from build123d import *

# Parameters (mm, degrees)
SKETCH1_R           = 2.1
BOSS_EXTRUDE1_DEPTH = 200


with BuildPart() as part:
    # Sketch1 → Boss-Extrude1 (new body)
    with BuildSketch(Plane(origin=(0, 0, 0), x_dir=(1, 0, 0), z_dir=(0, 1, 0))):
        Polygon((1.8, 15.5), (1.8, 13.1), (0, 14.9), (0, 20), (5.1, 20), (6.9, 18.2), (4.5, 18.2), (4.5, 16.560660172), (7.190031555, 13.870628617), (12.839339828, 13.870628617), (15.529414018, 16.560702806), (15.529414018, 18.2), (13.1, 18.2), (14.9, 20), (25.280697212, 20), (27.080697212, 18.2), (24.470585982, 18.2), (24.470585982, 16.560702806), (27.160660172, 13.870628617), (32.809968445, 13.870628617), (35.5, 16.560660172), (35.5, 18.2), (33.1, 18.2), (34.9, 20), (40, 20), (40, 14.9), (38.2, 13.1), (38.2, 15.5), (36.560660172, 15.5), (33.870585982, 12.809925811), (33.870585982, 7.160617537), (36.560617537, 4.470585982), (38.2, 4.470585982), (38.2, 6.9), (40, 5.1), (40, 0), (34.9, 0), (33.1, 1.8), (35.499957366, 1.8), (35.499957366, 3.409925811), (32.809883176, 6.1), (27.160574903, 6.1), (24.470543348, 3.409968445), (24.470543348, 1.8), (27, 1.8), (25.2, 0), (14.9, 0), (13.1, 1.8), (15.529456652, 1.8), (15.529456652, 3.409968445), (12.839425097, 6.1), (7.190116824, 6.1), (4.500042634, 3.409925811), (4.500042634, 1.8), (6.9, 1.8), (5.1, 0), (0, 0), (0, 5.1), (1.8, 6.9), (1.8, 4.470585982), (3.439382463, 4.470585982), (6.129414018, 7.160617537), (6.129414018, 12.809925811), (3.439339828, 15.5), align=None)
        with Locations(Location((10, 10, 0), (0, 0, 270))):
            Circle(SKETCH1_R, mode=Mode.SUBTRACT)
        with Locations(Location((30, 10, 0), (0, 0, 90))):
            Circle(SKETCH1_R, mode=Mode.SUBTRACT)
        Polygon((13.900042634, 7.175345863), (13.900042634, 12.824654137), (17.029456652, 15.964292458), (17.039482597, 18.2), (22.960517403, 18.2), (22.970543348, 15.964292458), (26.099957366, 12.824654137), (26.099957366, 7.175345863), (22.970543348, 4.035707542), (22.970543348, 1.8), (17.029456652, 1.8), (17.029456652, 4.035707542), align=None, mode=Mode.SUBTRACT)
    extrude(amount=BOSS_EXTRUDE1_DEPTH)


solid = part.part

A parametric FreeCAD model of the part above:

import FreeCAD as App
import Part
import Sketcher
from FreeCAD import Vector


def add_polygon(sketch, points):
    """Adds a closed chain of lines whose ends are joined by coincident constraints."""
    first, n = sketch.GeometryCount, len(points)
    for a, b in zip(points, points[1:] + points[:1]):
        sketch.addGeometry(Part.LineSegment(App.Vector(*a, 0), App.Vector(*b, 0)), False)
    for i in range(n):
        sketch.addConstraint(Sketcher.Constraint("Coincident", first + i, 2, first + (i + 1) % n, 1))

doc = App.newDocument("Part")
body = doc.addObject("PartDesign::Body", "Body")

# Sketch on XZ plane
sketch1 = doc.addObject("Sketcher::SketchObject", "Sketch")
body.addObject(sketch1)
sketch1.AttachmentSupport = (doc.XZ_Plane, [""])
sketch1.MapMode = "FlatFace"
add_polygon(sketch1, [(1.8, -13.1), (1.8, -15.5), (3.43934, -15.5), (6.129414, -12.809926), (6.129414, -7.160618), (3.439382, -4.470586), (1.8, -4.470586), (1.8, -6.9), (0, -5.1), (0, 0), (5.1, 0), (6.9, -1.8), (4.500043, -1.8), (4.500043, -3.409926), (7.190117, -6.1), (12.839425, -6.1), (15.529457, -3.409968), (15.529457, -1.8), (13.1, -1.8), (14.9, 0), (25.2, 0), (27, -1.8), (24.470543, -1.8), (24.470543, -3.409968), (27.160575, -6.1), (32.809883, -6.1), (35.499957, -3.409926), (35.499957, -1.8), (33.1, -1.8), (34.9, 0), (40, 0), (40, -5.1), (38.2, -6.9), (38.2, -4.470586), (36.560618, -4.470586), (33.870586, -7.160618), (33.870586, -12.809926), (36.56066, -15.5), (38.2, -15.5), (38.2, -13.1), (40, -14.9), (40, -20), (34.9, -20), (33.1, -18.2), (35.5, -18.2), (35.5, -16.56066), (32.809968, -13.870629), (27.16066, -13.870629), (24.470586, -16.560703), (24.470586, -18.2), (27.080697, -18.2), (25.280697, -20), (14.9, -20), (13.1, -18.2), (15.529414, -18.2), (15.529414, -16.560703), (12.83934, -13.870629), (7.190032, -13.870629), (4.5, -16.56066), (4.5, -18.2), (6.9, -18.2), (5.1, -20), (0, -20), (0, -14.9)])  # lines 0-63
sketch1.addGeometry(Part.Circle(Vector(30, -10, 0), Vector(0, 0, 1), 2.1), False)  # 64
add_polygon(sketch1, [(13.900043, -7.175346), (13.900043, -12.824654), (17.029457, -15.964292), (17.039483, -18.2), (22.960517, -18.2), (22.970543, -15.964292), (26.099957, -12.824654), (26.099957, -7.175346), (22.970543, -4.035708), (22.970543, -1.8), (17.029457, -1.8), (17.029457, -4.035708)])  # lines 65-76
sketch1.addGeometry(Part.Circle(Vector(10, -10, 0), Vector(0, 0, 1), 2.1), False)  # 77
sketch1.addConstraint([
    Sketcher.Constraint("Vertical", 0),
    Sketcher.Constraint("Horizontal", 1),
    Sketcher.Constraint("Vertical", 3),
    Sketcher.Constraint("Horizontal", 5),
    Sketcher.Constraint("Vertical", 6),
    Sketcher.Constraint("Vertical", 8),
    Sketcher.Constraint("Horizontal", 9),
    Sketcher.Constraint("Horizontal", 11),
    Sketcher.Constraint("Vertical", 12),
    Sketcher.Constraint("Horizontal", 14),
    Sketcher.Constraint("Vertical", 16),
    Sketcher.Constraint("Horizontal", 17),
    Sketcher.Constraint("Horizontal", 19),
    Sketcher.Constraint("Horizontal", 21),
    Sketcher.Constraint("Vertical", 22),
    Sketcher.Constraint("Horizontal", 24),
    Sketcher.Constraint("Vertical", 26),
    Sketcher.Constraint("Horizontal", 27),
    Sketcher.Constraint("Horizontal", 29),
    Sketcher.Constraint("Vertical", 30),
    Sketcher.Constraint("Vertical", 32),
    Sketcher.Constraint("Horizontal", 33),
    Sketcher.Constraint("Vertical", 35),
    Sketcher.Constraint("Horizontal", 37),
    Sketcher.Constraint("Vertical", 38),
    Sketcher.Constraint("Vertical", 40),
    Sketcher.Constraint("Horizontal", 41),
    Sketcher.Constraint("Horizontal", 43),
    Sketcher.Constraint("Vertical", 44),
    Sketcher.Constraint("Horizontal", 46),
    Sketcher.Constraint("Vertical", 48),
    Sketcher.Constraint("Horizontal", 49),
    Sketcher.Constraint("Horizontal", 51),
    Sketcher.Constraint("Horizontal", 53),
    Sketcher.Constraint("Vertical", 54),
    Sketcher.Constraint("Horizontal", 56),
    Sketcher.Constraint("Vertical", 58),
    Sketcher.Constraint("Horizontal", 59),
    Sketcher.Constraint("Horizontal", 61),
    Sketcher.Constraint("Vertical", 62),
    Sketcher.Constraint("Vertical", 65),
    Sketcher.Constraint("Horizontal", 68),
    Sketcher.Constraint("Vertical", 71),
    Sketcher.Constraint("Vertical", 73),
    Sketcher.Constraint("Horizontal", 74),
    Sketcher.Constraint("Vertical", 75),
    Sketcher.Constraint("Coincident", 8, 2, -1, 1),
    Sketcher.Constraint("Equal", 64, 77),
    Sketcher.Constraint("PointOnObject", 18, 2, -1),
    Sketcher.Constraint("PointOnObject", 28, 2, -1),
    Sketcher.Constraint("PointOnObject", 61, 2, -2),
    Sketcher.Constraint("Perpendicular", 2, 4),
    Sketcher.Constraint("Parallel", 4, 7),
    Sketcher.Constraint("Parallel", 7, 10),
    Sketcher.Constraint("Parallel", 10, 13),
    Sketcher.Constraint("Perpendicular", 13, 15),
    Sketcher.Constraint("Parallel", 15, 18),
    Sketcher.Constraint("Perpendicular", 18, 20),
    Sketcher.Constraint("Parallel", 20, 23),
    Sketcher.Constraint("Perpendicular", 23, 25),
    Sketcher.Constraint("Parallel", 25, 28),
    Sketcher.Constraint("Parallel", 28, 31),
    Sketcher.Constraint("Parallel", 31, 34),
    Sketcher.Constraint("Perpendicular", 34, 36),
    Sketcher.Constraint("Parallel", 36, 39),
    Sketcher.Constraint("Parallel", 39, 42),
    Sketcher.Constraint("Parallel", 42, 45),
    Sketcher.Constraint("Perpendicular", 45, 47),
    Sketcher.Constraint("Parallel", 47, 50),
    Sketcher.Constraint("Perpendicular", 50, 52),
    Sketcher.Constraint("Parallel", 52, 55),
    Sketcher.Constraint("Perpendicular", 55, 57),
    Sketcher.Constraint("Parallel", 57, 60),
    Sketcher.Constraint("Parallel", 60, 63),
    Sketcher.Constraint("Parallel", 66, 72),
    Sketcher.Constraint("Parallel", 70, 76),
    Sketcher.Constraint("Horizontal", 64, 3, 77, 3),
    Sketcher.Constraint("Horizontal", 11, 2, 16, 2),
    Sketcher.Constraint("Horizontal", 17, 2, 20, 2),
    Sketcher.Constraint("Horizontal", 15, 2, 22, 2),
    Sketcher.Constraint("Horizontal", 14, 2, 23, 2),
    Sketcher.Constraint("Horizontal", 12, 2, 25, 2),
    Sketcher.Constraint("Horizontal", 21, 2, 26, 2),
    Sketcher.Constraint("Horizontal", 7, 2, 30, 2),
    Sketcher.Constraint("Horizontal", 6, 2, 31, 2),
    Sketcher.Constraint("Horizontal", 5, 2, 32, 2),
    Sketcher.Constraint("Horizontal", 3, 2, 34, 2),
    Sketcher.Constraint("Horizontal", 2, 2, 35, 2),
    Sketcher.Constraint("Horizontal", 1, 2, 36, 2),
    Sketcher.Constraint("Horizontal", 43, 2, 48, 2),
    Sketcher.Constraint("Horizontal", 41, 2, 50, 2),
    Sketcher.Constraint("Horizontal", 49, 2, 52, 2),
    Sketcher.Constraint("Horizontal", 47, 2, 54, 2),
    Sketcher.Constraint("Horizontal", 46, 2, 55, 2),
    Sketcher.Constraint("Horizontal", 44, 2, 57, 2),
    Sketcher.Constraint("Horizontal", 53, 2, 58, 2),
    Sketcher.Constraint("Horizontal", 51, 2, 60, 2),
    Sketcher.Constraint("Horizontal", 39, 2, 62, 2),
    Sketcher.Constraint("Horizontal", 38, 2, 63, 2),
    Sketcher.Constraint("Horizontal", 59, 2, 67, 2),
    Sketcher.Constraint("Horizontal", 66, 2, 69, 2),
    Sketcher.Constraint("Horizontal", 65, 2, 70, 2),
    Sketcher.Constraint("Horizontal", 27, 2, 73, 2),
    Sketcher.Constraint("Horizontal", 72, 2, 75, 2),
    Sketcher.Constraint("Horizontal", 71, 2, 76, 2),
    Sketcher.Constraint("Vertical", 0, 2, 5, 2),
    Sketcher.Constraint("Vertical", 32, 2, 37, 2),
    Sketcher.Constraint("Vertical", 30, 2, 39, 2),
    Sketcher.Constraint("Vertical", 28, 2, 41, 2),
    Sketcher.Constraint("Vertical", 27, 2, 42, 2),
    Sketcher.Constraint("Vertical", 18, 2, 51, 2),
    Sketcher.Constraint("Vertical", 10, 2, 59, 2),
    Sketcher.Constraint("Vertical", 69, 2, 72, 2),
    Sketcher.Constraint("Vertical", 66, 2, 74, 2),
    Sketcher.Constraint("Equal", 14, 24),
    Sketcher.Constraint("Equal", 11, 27),
    Sketcher.Constraint("Equal", 9, 29),
    Sketcher.Constraint("Equal", 5, 33),
    Sketcher.Constraint("Equal", 24, 46),
    Sketcher.Constraint("Equal", 46, 56),
    Sketcher.Constraint("Equal", 43, 59),
    Sketcher.Constraint("Equal", 59, 0),
    Sketcher.Constraint("Equal", 56, 3),
    Sketcher.Constraint("Equal", 53, 6),
    Sketcher.Constraint("Equal", 61, 8),
    Sketcher.Constraint("Equal", 30, 40),
    Sketcher.Constraint("Equal", 37, 44),
    Sketcher.Constraint("Equal", 35, 65),
    Sketcher.Constraint("Equal", 7, 10),
    Sketcher.Constraint("Equal", 2, 13),
    Sketcher.Constraint("Equal", 4, 15),
    Sketcher.Constraint("Equal", 34, 45),
    Sketcher.Constraint("Equal", 36, 47),
    Sketcher.Constraint("Equal", 67, 69),
    Sketcher.Constraint("Diameter", 64, 4.2),
    Sketcher.Constraint("DistanceX", 9, 1, 9, 2, 5.1),
    Sketcher.Constraint("DistanceX", 19, 1, 19, 2, 10.3),
    Sketcher.Constraint("DistanceX", 43, 1, 43, 2, 2.4),
    Sketcher.Constraint("DistanceX", -1, 1, 64, 3, 30.0),
    Sketcher.Constraint("DistanceY", 64, 3, -1, 1, 10.0),
    Sketcher.Constraint("DistanceX", -1, 1, 77, 3, 10.0),
    Sketcher.Constraint("DistanceX", -1, 1, 20, 2, 27.0),
    Sketcher.Constraint("DistanceX", -1, 1, 29, 2, 40.0),
    Sketcher.Constraint("DistanceY", 40, 2, -1, 1, 20.0),
    Sketcher.Constraint("DistanceY", 13, 2, -1, 1, 6.1),
    Sketcher.Constraint("DistanceX", 1, 1, 1, 2, 1.63934),
    Sketcher.Constraint("DistanceX", 14, 1, 14, 2, 5.649308),
    Sketcher.Constraint("DistanceX", 49, 1, 49, 2, 2.610111),
    Sketcher.Constraint("DistanceY", 16, 1, 16, 2, 1.609968),
    Sketcher.Constraint("Distance", 2, 3.804339),
    Sketcher.Constraint("Distance", 67, 2.23573),
    Sketcher.Constraint("DistanceX", 11, 2, 11, 1, 2.399957),
    Sketcher.Constraint("DistanceX", 68, 1, 68, 2, 5.921035),
    Sketcher.Constraint("DistanceX", 74, 2, 74, 1, 5.941087),
    Sketcher.Constraint("DistanceY", 73, 1, 73, 2, 2.235708),
    Sketcher.Constraint("Distance", 66, 4.432895),
    Sketcher.Constraint("DistanceX", -1, 1, 65, 2, 13.900043),
])
pad1 = doc.addObject("PartDesign::Pad", "Pad")
body.addObject(pad1)
pad1.Profile = sketch1
pad1.Length = 200
pad1.Reversed = True

doc.recompute()
